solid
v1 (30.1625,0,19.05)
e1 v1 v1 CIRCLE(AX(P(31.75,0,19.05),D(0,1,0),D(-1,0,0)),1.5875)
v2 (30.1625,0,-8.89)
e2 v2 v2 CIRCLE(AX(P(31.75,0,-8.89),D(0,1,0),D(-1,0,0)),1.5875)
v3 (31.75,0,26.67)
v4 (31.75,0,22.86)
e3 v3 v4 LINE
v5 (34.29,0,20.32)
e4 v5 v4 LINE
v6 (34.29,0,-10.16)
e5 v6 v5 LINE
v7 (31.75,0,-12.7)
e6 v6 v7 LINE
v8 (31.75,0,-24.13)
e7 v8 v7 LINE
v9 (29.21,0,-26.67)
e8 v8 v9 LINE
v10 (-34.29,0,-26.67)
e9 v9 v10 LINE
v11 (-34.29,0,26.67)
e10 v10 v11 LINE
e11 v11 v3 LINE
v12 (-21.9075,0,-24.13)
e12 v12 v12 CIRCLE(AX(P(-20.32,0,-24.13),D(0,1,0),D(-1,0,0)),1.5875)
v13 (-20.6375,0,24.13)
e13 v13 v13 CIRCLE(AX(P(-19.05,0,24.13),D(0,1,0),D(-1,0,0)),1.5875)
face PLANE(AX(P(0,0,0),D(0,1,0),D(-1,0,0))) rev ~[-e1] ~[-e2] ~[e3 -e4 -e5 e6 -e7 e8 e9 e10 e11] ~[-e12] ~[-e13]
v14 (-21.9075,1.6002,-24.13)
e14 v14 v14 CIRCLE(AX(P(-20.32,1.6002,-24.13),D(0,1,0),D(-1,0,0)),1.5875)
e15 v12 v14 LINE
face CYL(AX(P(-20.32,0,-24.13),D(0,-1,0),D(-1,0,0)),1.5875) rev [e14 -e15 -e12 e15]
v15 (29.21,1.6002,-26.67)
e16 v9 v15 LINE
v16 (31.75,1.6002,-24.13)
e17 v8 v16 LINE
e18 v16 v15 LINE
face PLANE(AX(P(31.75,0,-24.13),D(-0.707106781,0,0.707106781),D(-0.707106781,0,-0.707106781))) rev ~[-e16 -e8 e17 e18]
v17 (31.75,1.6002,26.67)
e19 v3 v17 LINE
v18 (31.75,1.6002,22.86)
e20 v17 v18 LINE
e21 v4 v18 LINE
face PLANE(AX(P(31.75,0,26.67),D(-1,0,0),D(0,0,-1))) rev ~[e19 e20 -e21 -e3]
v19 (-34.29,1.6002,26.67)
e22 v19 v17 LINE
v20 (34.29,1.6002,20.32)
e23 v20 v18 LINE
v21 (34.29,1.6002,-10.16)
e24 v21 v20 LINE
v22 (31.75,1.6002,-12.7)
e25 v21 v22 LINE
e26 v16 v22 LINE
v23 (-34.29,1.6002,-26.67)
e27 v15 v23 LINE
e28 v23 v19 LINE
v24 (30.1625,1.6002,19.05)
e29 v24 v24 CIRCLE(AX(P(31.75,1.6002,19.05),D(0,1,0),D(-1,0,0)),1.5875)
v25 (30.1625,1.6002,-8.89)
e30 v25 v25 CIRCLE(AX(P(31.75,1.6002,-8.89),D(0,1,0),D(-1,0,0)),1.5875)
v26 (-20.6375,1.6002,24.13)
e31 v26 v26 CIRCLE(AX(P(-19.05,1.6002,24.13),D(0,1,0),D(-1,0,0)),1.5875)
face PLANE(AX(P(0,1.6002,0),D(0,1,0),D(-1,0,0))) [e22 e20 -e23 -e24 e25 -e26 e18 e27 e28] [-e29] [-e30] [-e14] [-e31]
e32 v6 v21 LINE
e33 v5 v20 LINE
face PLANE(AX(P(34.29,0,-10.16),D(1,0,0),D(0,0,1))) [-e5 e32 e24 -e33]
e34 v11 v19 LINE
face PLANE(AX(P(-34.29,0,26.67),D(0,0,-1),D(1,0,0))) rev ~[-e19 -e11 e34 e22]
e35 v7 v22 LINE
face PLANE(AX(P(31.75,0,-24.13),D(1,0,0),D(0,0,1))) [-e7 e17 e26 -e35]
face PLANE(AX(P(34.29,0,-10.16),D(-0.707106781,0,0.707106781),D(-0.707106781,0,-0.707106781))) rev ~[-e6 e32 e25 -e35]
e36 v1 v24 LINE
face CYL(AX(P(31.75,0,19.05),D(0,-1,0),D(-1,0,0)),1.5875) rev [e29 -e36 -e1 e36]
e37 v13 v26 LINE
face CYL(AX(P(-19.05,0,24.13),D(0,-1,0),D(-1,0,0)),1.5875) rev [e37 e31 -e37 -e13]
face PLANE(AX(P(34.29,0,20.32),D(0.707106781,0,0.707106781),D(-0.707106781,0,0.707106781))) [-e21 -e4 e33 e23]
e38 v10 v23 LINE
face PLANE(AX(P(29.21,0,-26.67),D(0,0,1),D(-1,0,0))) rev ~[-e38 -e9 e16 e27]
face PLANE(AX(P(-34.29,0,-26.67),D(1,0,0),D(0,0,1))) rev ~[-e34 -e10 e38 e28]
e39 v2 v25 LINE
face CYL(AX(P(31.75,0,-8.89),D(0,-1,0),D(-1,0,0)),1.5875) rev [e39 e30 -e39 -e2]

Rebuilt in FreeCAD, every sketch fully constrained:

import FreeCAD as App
import Part
import Sketcher

V = App.Vector
Q = App.Units.Quantity

doc = App.newDocument("Part")
body = doc.addObject("PartDesign::Body", "Body")

sketch1 = doc.addObject("Sketcher::SketchObject", "Sketch")
body.addObject(sketch1)
sketch1.AttachmentSupport = (doc.XZ_Plane, [""])
sketch1.MapMode = "FlatFace"
sketch1.addGeometry(Part.LineSegment(V(31.75, -12.7, 0), V(31.75, -24.13, 0)), False)
sketch1.addGeometry(Part.LineSegment(V(31.75, -24.13, 0), V(29.21, -26.67, 0)), False)
sketch1.addGeometry(Part.LineSegment(V(29.21, -26.67, 0), V(-34.29, -26.67, 0)), False)
sketch1.addGeometry(Part.LineSegment(V(-34.29, -26.67, 0), V(-34.29, 26.67, 0)), False)
sketch1.addGeometry(Part.LineSegment(V(-34.29, 26.67, 0), V(31.75, 26.67, 0)), False)
sketch1.addGeometry(Part.LineSegment(V(31.75, 26.67, 0), V(31.75, 22.86, 0)), False)
sketch1.addGeometry(Part.LineSegment(V(31.75, 22.86, 0), V(34.29, 20.32, 0)), False)
sketch1.addGeometry(Part.LineSegment(V(34.29, 20.32, 0), V(34.29, -10.16, 0)), False)
sketch1.addGeometry(Part.LineSegment(V(34.29, -10.16, 0), V(31.75, -12.7, 0)), False)
sketch1.addGeometry(Part.Circle(V(31.75, -8.89, 0), V(0, 0, 1), 1.5875), False)
sketch1.addGeometry(Part.Circle(V(-20.32, -24.13, 0), V(0, 0, 1), 1.5875), False)
sketch1.addGeometry(Part.Circle(V(31.75, 19.05, 0), V(0, 0, 1), 1.5875), False)
sketch1.addGeometry(Part.Circle(V(-19.05, 24.13, 0), V(0, 0, 1), 1.5875), False)
sketch1.addConstraint(Sketcher.Constraint("Coincident", 0, 2, 1, 1))
sketch1.addConstraint(Sketcher.Constraint("Coincident", 1, 2, 2, 1))
sketch1.addConstraint(Sketcher.Constraint("Coincident", 2, 2, 3, 1))
sketch1.addConstraint(Sketcher.Constraint("Coincident", 3, 2, 4, 1))
sketch1.addConstraint(Sketcher.Constraint("Coincident", 4, 2, 5, 1))
sketch1.addConstraint(Sketcher.Constraint("Coincident", 5, 2, 6, 1))
sketch1.addConstraint(Sketcher.Constraint("Coincident", 6, 2, 7, 1))
sketch1.addConstraint(Sketcher.Constraint("Coincident", 7, 2, 8, 1))
sketch1.addConstraint(Sketcher.Constraint("Coincident", 8, 2, 0, 1))
sketch1.addConstraint(Sketcher.Constraint("Vertical", 0))
sketch1.addConstraint(Sketcher.Constraint("Horizontal", 2))
sketch1.addConstraint(Sketcher.Constraint("Vertical", 3))
sketch1.addConstraint(Sketcher.Constraint("Horizontal", 4))
sketch1.addConstraint(Sketcher.Constraint("Vertical", 5))
sketch1.addConstraint(Sketcher.Constraint("Vertical", 7))
sketch1.addConstraint(Sketcher.Constraint("Equal", 9, 10))
sketch1.addConstraint(Sketcher.Constraint("Equal", 10, 11))
sketch1.addConstraint(Sketcher.Constraint("Equal", 11, 12))
sketch1.addConstraint(Sketcher.Constraint("Perpendicular", 1, 6))
sketch1.addConstraint(Sketcher.Constraint("Perpendicular", 6, 8))
sketch1.addConstraint(Sketcher.Constraint("Horizontal", 10, 3, 0, 2))
sketch1.addConstraint(Sketcher.Constraint("Vertical", 9, 3, 11, 3))
sketch1.addConstraint(Sketcher.Constraint("Vertical", 11, 3, 0, 2))
sketch1.addConstraint(Sketcher.Constraint("Vertical", 0, 2, 4, 2))
sketch1.addConstraint(Sketcher.Constraint("Equal", 1, 6))
sketch1.addConstraint(Sketcher.Constraint("Equal", 6, 8))
sketch1.addConstraint(Sketcher.Constraint("Diameter", 9, Q("0.125 in")))
sketch1.addConstraint(Sketcher.Constraint("DistanceX", 4, 1, 4, 2, Q("2.6 in")))
sketch1.addConstraint(Sketcher.Constraint("DistanceY", 3, 1, 3, 2, Q("2.1 in")))
sketch1.addConstraint(Sketcher.Constraint("DistanceY", 5, 2, 5, 1, Q("0.15 in")))
sketch1.addConstraint(Sketcher.Constraint("DistanceY", 10, 3, 9, 3, Q("0.6 in")))
sketch1.addConstraint(Sketcher.Constraint("DistanceY", 9, 3, 11, 3, Q("1.1 in")))
sketch1.addConstraint(Sketcher.Constraint("DistanceX", 1, 2, 0, 2, Q("0.1 in")))
sketch1.addConstraint(Sketcher.Constraint("DistanceX", 2, 2, 12, 3, Q("0.6 in")))
sketch1.addConstraint(Sketcher.Constraint("DistanceY", 12, 3, 3, 2, Q("0.1 in")))
sketch1.addConstraint(Sketcher.Constraint("DistanceX", 2, 2, 10, 3, Q("0.55 in")))
sketch1.addConstraint(Sketcher.Constraint("DistanceY", 0, 2, 7, 2, Q("0.55 in")))
sketch1.addConstraint(Sketcher.Constraint("DistanceX", 10, 3, -1, 1, Q("0.8 in")))
sketch1.addConstraint(Sketcher.Constraint("DistanceY", -1, 1, 5, 2, Q("0.9 in")))
pad1 = doc.addObject("PartDesign::Pad", "Pad")
body.addObject(pad1)
pad1.Profile = sketch1
pad1.Length = Q("0.063 in")
pad1.Reversed = True

doc.recompute()
